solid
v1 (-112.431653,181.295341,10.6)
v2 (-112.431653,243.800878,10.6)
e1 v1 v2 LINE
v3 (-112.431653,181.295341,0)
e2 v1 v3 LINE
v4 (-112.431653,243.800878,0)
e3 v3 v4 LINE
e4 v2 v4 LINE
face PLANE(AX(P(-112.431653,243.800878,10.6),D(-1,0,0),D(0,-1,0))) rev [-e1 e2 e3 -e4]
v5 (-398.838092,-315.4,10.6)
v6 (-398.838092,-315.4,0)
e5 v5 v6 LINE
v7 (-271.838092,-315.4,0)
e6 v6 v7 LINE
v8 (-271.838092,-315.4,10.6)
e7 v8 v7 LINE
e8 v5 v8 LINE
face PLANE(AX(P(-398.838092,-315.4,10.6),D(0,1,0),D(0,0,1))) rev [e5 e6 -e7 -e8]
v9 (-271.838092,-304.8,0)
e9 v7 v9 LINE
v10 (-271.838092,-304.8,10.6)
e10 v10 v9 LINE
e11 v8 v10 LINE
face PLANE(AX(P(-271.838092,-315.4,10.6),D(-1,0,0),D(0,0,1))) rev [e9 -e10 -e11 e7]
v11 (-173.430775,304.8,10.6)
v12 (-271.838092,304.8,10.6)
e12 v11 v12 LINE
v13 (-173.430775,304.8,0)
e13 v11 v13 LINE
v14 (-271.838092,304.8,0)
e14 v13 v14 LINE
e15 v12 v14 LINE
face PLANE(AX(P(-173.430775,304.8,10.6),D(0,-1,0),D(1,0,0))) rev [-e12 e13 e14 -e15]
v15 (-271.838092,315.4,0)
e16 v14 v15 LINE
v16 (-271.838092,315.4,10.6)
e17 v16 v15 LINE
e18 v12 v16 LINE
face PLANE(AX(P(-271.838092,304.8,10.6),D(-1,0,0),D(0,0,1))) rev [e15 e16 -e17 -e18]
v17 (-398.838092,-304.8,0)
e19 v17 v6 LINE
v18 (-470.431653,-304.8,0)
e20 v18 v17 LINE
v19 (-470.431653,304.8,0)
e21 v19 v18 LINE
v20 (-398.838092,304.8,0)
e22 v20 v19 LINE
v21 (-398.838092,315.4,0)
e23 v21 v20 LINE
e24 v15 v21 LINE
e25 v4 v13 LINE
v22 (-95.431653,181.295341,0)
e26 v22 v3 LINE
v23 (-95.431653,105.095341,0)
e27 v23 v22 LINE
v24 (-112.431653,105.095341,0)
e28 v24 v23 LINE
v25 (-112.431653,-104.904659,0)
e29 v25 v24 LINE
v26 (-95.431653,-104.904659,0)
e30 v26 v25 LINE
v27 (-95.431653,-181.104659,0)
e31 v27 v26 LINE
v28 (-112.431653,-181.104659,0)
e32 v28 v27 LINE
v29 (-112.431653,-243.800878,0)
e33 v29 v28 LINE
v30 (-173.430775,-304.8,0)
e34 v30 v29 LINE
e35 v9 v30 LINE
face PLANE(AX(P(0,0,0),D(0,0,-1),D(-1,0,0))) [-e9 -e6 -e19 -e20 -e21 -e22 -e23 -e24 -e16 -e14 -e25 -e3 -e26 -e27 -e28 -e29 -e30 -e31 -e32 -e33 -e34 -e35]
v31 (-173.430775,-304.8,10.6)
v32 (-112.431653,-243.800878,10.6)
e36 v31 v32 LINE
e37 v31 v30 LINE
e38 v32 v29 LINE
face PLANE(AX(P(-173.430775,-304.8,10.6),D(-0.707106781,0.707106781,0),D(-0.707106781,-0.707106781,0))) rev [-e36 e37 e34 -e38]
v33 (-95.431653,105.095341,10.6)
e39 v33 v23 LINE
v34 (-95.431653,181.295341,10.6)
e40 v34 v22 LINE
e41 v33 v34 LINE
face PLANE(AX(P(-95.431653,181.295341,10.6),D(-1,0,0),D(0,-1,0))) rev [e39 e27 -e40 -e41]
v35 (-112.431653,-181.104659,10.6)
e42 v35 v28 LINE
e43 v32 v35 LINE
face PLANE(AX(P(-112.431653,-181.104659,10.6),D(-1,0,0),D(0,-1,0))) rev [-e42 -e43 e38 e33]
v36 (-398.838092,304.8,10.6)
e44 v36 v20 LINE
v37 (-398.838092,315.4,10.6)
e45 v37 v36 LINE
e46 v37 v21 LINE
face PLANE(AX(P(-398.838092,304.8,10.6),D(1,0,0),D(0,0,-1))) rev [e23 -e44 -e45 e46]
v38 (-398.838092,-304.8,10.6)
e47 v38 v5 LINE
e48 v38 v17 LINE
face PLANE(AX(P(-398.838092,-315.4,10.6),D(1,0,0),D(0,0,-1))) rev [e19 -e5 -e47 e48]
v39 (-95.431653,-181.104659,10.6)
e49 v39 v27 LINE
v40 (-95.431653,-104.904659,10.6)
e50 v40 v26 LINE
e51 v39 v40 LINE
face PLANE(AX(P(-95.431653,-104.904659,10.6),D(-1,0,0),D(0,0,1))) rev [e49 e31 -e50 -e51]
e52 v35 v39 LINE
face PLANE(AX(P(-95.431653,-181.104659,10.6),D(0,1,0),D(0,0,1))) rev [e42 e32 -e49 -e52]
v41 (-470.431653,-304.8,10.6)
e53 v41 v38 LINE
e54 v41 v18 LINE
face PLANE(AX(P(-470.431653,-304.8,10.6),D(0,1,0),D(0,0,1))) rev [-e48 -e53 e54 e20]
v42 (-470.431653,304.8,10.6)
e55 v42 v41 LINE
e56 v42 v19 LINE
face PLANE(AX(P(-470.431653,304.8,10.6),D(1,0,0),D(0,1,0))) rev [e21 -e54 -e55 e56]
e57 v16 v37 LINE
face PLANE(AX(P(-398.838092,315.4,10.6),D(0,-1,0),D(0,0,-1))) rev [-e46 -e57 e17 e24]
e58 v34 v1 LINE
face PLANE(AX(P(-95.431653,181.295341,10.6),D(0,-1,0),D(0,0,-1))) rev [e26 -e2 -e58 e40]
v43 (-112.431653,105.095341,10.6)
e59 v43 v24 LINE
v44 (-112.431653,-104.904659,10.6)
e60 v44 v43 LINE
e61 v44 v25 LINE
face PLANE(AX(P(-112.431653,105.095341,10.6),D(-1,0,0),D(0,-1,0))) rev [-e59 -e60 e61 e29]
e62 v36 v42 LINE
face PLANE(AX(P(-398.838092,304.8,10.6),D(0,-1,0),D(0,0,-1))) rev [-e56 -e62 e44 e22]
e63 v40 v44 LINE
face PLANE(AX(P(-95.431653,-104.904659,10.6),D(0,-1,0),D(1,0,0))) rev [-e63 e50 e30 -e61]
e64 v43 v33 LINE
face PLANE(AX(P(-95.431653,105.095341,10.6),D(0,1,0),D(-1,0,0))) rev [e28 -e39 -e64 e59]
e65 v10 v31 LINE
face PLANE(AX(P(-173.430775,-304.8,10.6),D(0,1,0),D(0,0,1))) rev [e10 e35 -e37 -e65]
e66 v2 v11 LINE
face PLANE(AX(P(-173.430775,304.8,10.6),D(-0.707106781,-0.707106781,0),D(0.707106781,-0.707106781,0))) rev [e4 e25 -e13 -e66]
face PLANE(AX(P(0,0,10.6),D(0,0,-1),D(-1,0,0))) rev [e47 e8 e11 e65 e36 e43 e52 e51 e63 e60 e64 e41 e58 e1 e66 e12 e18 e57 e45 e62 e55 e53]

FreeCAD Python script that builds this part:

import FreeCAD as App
import Part
import Sketcher


def add_polygon(sketch, points):
    """Adds a closed chain of lines whose ends are joined by coincident constraints."""
    first, n = sketch.GeometryCount, len(points)
    for a, b in zip(points, points[1:] + points[:1]):
        sketch.addGeometry(Part.LineSegment(App.Vector(*a, 0), App.Vector(*b, 0)), False)
    for i in range(n):
        sketch.addConstraint(Sketcher.Constraint("Coincident", first + i, 2, first + (i + 1) % n, 1))

doc = App.newDocument("Part")
params = doc.addObject("Spreadsheet::Sheet", "Params")
for row, (alias, value) in enumerate([
    ("sketch1_width", "127 mm"),
    ("sketch1_width2", "17 mm"),
    ("sketch1_height", "210 mm"),
    ("sketch1_height2", "10.6 mm"),
    ("sketch1_height3", "76.2 mm"),
    ("pad1_length", "10.6 mm"),
], start=1):
    params.set(f"A{row}", alias)
    params.set(f"B{row}", "=" + value)
    params.setAlias(f"B{row}", alias)

body = doc.addObject("PartDesign::Body", "Body")

# Sketch on XY plane
sketch1 = body.newObject("Sketcher::SketchObject", "Sketch")
sketch1.AttachmentSupport = (doc.getObject("XY_Plane"), [""])
sketch1.MapMode = "FlatFace"
add_polygon(sketch1, [(-398.838092, -315.4), (-271.838092, -315.4), (-271.838092, -304.8), (-173.430775, -304.8), (-112.431653, -243.800878), (-112.431653, -181.104659), (-95.431653, -181.104659), (-95.431653, -104.904659), (-112.431653, -104.904659), (-112.431653, 105.095341), (-95.431653, 105.095341), (-95.431653, 181.295341), (-112.431653, 181.295341), (-112.431653, 243.800878), (-173.430775, 304.8), (-271.838092, 304.8), (-271.838092, 315.4), (-398.838092, 315.4), (-398.838092, 304.8), (-470.431653, 304.8), (-470.431653, -304.8), (-398.838092, -304.8)])  # lines 0-21
sketch1.addConstraint([
    Sketcher.Constraint("Horizontal", 0),
    Sketcher.Constraint("Vertical", 1),
    Sketcher.Constraint("Horizontal", 2),
    Sketcher.Constraint("Vertical", 4),
    Sketcher.Constraint("Horizontal", 5),
    Sketcher.Constraint("Vertical", 6),
    Sketcher.Constraint("Horizontal", 7),
    Sketcher.Constraint("Vertical", 8),
    Sketcher.Constraint("Horizontal", 9),
    Sketcher.Constraint("Vertical", 10),
    Sketcher.Constraint("Horizontal", 11),
    Sketcher.Constraint("Vertical", 12),
    Sketcher.Constraint("Horizontal", 14),
    Sketcher.Constraint("Vertical", 15),
    Sketcher.Constraint("Horizontal", 16),
    Sketcher.Constraint("Vertical", 17),
    Sketcher.Constraint("Horizontal", 18),
    Sketcher.Constraint("Vertical", 19),
    Sketcher.Constraint("Horizontal", 20),
    Sketcher.Constraint("Vertical", 21),
    Sketcher.Constraint("Symmetric", 3, 2, 12, 2, -1),
    Sketcher.Constraint("Symmetric", 2, 2, 13, 2, -1),
    Sketcher.Constraint("Symmetric", 0, 2, 15, 2, -1),
    Sketcher.Constraint("Symmetric", 17, 2, 20, 2, -1),
    Sketcher.Constraint("Perpendicular", 3, 13),
    Sketcher.Constraint("Horizontal", 14, 2, 17, 2),
    Sketcher.Constraint("Vertical", 4, 2, 7, 2),
    Sketcher.Constraint("Vertical", 6, 2, 9, 2),
    Sketcher.Constraint("Equal", 6, 10),
    Sketcher.Constraint("DistanceX", 0, 1, 0, 2, 127.0),
    Sketcher.Constraint("DistanceX", 5, 1, 5, 2, 17.0),
    Sketcher.Constraint("DistanceY", 8, 1, 8, 2, 210.0),
    Sketcher.Constraint("DistanceY", 1, 1, 1, 2, 10.6),
    Sketcher.Constraint("DistanceY", 6, 1, 6, 2, 76.2),
    Sketcher.Constraint("DistanceY", 19, 2, 19, 1, 609.6),
    Sketcher.Constraint("DistanceX", 19, 2, 3, 2, 358.0),
    Sketcher.Constraint("DistanceX", 18, 2, 18, 1, 71.593561),
    Sketcher.Constraint("DistanceY", 4, 1, 4, 2, 62.696219),
    Sketcher.Constraint("DistanceX", 2, 1, 2, 2, 98.407317),
    Sketcher.Constraint("DistanceX", 0, 2, -1, 1, 271.838092),
])
sketch1.setExpression("Constraints[51]", "Params.sketch1_width")
sketch1.setExpression("Constraints[52]", "Params.sketch1_width2")
sketch1.setExpression("Constraints[53]", "Params.sketch1_height")
sketch1.setExpression("Constraints[54]", "Params.sketch1_height2")
sketch1.setExpression("Constraints[55]", "Params.sketch1_height3")
pad1 = body.newObject("PartDesign::Pad", "Pad")
pad1.Profile = sketch1
pad1.setExpression("Length", "Params.pad1_length")

doc.recompute()
